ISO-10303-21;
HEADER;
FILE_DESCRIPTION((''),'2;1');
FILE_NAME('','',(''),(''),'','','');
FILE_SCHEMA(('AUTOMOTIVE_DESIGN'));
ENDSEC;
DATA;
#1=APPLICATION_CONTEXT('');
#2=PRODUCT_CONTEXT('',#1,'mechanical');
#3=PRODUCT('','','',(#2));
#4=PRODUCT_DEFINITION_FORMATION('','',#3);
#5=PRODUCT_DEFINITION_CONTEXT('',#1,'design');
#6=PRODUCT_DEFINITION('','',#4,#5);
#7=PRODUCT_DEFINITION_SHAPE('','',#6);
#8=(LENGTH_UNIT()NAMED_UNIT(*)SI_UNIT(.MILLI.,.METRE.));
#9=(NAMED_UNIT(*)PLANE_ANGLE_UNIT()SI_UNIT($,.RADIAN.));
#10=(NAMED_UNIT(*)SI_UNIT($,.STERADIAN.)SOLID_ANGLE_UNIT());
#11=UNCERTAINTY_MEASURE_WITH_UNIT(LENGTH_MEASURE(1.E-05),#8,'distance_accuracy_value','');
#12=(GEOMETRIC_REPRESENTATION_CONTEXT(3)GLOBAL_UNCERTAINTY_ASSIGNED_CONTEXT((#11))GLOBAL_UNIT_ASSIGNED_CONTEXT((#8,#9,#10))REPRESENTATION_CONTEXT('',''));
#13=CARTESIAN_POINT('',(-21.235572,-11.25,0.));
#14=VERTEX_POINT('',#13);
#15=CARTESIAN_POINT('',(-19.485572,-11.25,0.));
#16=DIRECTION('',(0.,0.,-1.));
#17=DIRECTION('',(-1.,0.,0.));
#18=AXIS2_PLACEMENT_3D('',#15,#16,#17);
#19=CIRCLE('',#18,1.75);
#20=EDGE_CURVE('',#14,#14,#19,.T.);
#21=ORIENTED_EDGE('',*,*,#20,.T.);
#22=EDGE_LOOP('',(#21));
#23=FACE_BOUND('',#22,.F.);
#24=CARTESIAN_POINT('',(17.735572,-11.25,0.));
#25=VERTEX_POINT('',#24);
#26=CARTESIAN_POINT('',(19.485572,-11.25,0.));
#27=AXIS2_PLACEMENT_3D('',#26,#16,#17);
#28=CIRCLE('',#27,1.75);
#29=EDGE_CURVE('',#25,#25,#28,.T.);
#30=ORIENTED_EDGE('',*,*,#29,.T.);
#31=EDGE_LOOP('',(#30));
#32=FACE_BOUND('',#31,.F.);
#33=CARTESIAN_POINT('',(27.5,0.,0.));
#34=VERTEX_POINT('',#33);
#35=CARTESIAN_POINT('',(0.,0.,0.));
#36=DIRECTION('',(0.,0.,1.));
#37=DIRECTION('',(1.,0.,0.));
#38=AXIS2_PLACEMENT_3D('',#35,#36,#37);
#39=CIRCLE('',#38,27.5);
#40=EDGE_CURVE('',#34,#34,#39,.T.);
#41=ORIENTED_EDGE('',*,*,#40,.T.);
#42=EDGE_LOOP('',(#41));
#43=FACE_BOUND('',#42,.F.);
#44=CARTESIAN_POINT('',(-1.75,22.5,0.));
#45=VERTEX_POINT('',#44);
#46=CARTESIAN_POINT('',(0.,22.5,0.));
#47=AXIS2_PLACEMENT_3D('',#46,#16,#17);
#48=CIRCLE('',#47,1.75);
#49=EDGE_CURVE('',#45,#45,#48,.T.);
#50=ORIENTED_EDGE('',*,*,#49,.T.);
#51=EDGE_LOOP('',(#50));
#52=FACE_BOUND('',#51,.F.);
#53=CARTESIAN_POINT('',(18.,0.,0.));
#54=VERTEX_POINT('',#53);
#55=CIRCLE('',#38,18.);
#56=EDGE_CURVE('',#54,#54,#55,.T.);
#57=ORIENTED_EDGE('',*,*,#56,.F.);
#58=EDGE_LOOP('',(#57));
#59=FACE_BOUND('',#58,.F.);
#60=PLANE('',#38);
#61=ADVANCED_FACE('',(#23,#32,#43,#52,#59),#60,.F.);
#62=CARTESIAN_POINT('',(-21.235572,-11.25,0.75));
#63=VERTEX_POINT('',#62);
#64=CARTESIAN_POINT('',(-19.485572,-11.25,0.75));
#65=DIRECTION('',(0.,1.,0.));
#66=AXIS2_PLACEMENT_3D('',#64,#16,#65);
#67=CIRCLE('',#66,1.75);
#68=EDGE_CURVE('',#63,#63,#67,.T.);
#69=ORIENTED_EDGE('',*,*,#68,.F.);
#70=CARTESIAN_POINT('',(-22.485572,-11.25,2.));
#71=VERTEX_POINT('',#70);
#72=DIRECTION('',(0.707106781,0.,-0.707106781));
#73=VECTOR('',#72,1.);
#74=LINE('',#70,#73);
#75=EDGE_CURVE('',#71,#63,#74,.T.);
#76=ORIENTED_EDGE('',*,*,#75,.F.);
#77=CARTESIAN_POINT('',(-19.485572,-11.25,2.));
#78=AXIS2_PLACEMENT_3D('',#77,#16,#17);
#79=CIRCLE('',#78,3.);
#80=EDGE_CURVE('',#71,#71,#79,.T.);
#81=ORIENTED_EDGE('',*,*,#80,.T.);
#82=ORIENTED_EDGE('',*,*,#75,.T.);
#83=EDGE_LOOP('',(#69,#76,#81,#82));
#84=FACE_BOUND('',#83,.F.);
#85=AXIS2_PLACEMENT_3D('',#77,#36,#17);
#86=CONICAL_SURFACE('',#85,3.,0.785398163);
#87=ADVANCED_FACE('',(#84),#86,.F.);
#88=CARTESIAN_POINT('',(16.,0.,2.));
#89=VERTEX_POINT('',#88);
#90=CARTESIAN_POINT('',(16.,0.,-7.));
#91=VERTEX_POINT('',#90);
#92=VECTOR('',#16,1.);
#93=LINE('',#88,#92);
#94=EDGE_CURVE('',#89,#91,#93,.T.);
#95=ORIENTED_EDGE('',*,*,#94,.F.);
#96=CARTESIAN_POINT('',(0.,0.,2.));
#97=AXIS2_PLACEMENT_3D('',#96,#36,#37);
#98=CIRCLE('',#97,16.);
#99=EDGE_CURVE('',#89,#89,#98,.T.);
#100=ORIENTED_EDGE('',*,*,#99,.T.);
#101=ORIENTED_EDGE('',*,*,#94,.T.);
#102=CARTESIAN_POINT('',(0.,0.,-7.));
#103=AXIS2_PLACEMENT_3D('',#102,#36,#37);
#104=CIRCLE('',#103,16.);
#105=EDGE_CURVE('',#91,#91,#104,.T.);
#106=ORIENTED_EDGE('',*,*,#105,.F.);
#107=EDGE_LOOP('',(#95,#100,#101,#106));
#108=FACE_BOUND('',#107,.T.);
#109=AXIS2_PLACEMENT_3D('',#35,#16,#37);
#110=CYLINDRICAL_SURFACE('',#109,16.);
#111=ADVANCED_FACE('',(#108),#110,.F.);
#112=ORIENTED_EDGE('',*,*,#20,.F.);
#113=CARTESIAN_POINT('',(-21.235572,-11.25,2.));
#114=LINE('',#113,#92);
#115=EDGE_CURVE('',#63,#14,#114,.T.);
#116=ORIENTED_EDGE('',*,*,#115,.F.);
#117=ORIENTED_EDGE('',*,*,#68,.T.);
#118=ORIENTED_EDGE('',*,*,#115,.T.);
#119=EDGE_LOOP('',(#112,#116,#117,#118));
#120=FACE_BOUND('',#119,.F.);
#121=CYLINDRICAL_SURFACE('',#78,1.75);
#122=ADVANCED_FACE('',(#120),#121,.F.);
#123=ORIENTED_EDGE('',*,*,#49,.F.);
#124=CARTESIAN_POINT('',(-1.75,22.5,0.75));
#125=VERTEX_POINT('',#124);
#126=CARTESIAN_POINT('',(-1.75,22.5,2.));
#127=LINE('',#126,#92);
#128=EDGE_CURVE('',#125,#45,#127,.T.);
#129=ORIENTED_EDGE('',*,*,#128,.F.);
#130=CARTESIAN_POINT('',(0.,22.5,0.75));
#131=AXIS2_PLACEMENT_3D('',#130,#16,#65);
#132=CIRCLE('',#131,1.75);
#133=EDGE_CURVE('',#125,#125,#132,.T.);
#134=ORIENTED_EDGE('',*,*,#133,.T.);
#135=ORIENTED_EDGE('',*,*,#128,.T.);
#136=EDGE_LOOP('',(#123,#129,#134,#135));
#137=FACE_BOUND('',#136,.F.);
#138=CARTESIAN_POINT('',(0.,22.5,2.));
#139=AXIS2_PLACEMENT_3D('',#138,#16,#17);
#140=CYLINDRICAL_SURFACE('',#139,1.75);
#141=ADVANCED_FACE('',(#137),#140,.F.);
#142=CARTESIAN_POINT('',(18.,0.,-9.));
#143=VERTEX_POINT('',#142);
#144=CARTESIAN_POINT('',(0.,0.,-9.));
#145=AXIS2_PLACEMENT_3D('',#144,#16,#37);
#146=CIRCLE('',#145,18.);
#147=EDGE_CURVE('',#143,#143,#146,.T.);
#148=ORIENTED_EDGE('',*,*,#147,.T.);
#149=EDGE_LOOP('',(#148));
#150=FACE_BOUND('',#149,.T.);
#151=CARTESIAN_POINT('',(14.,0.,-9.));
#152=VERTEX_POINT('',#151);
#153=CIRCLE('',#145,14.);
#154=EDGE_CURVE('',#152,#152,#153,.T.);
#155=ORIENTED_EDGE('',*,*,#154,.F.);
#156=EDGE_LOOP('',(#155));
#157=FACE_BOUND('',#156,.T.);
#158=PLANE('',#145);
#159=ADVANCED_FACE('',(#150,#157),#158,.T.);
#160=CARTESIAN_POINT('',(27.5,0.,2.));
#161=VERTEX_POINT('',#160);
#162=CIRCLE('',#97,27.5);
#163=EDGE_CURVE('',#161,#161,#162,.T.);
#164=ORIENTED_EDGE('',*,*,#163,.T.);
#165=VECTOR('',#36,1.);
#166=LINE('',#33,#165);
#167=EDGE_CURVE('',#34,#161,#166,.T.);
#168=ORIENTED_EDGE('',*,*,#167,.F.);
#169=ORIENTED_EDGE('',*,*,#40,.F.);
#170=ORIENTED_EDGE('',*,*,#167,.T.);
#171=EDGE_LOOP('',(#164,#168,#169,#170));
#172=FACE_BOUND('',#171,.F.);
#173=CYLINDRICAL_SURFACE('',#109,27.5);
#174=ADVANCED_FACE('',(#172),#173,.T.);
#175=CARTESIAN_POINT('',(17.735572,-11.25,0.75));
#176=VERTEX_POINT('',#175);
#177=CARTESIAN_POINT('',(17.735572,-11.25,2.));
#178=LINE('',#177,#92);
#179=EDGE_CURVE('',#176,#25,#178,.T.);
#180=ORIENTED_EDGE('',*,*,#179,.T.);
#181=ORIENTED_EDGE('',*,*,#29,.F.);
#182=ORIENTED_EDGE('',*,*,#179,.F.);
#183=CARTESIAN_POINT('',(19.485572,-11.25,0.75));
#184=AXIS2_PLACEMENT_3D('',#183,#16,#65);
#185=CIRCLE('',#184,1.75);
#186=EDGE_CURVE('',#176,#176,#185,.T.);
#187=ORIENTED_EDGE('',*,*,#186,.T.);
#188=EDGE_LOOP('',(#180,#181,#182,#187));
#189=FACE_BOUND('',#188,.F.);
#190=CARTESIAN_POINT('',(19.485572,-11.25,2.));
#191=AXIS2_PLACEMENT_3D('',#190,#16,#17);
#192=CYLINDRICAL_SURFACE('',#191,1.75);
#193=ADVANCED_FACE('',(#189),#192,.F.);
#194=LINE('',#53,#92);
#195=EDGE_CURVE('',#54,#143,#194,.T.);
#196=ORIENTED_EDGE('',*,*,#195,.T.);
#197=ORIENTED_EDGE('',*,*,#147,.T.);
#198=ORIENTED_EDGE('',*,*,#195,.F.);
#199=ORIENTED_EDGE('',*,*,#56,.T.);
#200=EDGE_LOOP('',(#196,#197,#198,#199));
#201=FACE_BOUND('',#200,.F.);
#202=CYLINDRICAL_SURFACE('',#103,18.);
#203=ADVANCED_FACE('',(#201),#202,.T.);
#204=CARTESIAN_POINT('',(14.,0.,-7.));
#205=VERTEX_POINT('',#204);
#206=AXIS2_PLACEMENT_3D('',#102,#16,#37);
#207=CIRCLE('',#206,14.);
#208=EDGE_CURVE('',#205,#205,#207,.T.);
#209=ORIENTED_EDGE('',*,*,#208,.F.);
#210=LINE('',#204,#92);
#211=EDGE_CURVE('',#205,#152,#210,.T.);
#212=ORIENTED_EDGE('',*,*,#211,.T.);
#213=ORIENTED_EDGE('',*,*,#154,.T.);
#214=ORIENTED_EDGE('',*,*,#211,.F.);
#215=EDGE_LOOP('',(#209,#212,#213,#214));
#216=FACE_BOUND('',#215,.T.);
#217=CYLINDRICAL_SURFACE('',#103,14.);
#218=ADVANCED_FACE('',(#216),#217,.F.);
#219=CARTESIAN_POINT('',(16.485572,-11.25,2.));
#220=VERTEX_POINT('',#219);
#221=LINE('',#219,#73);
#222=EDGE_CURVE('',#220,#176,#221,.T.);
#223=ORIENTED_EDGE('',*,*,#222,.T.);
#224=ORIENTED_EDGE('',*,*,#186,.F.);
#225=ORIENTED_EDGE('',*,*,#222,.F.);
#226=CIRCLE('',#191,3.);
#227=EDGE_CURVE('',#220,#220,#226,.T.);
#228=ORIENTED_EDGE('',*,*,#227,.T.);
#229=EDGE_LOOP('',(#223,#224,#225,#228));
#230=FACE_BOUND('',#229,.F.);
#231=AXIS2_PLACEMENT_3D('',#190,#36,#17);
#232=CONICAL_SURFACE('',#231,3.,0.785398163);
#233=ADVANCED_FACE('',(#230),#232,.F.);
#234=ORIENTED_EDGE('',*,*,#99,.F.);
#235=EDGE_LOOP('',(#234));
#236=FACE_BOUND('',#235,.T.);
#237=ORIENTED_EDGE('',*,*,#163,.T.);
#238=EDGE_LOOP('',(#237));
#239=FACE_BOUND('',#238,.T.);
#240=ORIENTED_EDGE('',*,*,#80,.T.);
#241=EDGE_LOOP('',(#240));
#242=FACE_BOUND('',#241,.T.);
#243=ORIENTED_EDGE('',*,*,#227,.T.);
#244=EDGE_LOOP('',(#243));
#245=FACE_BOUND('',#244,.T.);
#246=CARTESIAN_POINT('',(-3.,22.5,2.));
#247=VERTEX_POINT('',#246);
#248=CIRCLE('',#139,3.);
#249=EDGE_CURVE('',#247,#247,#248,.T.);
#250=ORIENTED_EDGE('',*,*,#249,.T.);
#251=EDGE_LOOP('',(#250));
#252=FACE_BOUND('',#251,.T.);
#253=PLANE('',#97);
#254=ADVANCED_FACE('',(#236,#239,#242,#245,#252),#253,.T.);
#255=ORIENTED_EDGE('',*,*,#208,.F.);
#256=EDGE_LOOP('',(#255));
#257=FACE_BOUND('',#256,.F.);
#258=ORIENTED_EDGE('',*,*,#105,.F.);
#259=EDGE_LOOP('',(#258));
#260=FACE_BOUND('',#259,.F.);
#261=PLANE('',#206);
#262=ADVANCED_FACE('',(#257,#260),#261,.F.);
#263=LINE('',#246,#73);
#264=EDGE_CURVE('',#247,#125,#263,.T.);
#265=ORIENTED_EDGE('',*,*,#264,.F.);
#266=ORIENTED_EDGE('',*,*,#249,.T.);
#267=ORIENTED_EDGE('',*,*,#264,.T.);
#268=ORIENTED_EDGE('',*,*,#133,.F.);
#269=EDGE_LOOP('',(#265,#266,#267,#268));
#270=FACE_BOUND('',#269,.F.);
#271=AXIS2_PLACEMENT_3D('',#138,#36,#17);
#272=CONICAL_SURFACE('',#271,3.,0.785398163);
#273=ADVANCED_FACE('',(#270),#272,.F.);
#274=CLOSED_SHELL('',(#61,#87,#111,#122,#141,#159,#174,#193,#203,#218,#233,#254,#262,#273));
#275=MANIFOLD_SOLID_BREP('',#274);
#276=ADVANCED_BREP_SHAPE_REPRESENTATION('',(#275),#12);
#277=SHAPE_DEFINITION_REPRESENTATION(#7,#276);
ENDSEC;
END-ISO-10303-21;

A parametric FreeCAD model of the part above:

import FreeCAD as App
import Part
import Sketcher

V = App.Vector

doc = App.newDocument("Part")
body = doc.addObject("PartDesign::Body", "Body")

sketch1 = doc.addObject("Sketcher::SketchObject", "Sketch")
body.addObject(sketch1)
sketch1.AttachmentSupport = (doc.XY_Plane, [""])
sketch1.MapMode = "FlatFace"
sketch1.addGeometry([
    Part.Circle(V(0, 0, 0), V(0, 0, 1), 18),
    Part.Circle(V(0, 0, 0), V(0, 0, 1), 16),
], False)
sketch1.addConstraint([
    Sketcher.Constraint("Coincident", 0, 3, -1, 1),
    Sketcher.Constraint("Coincident", 1, 3, -1, 1),
    Sketcher.Constraint("Diameter", 0, 36.0),
    Sketcher.Constraint("Diameter", 1, 32.0),
])
pad1 = doc.addObject("PartDesign::Pad", "Pad")
body.addObject(pad1)
pad1.Profile = sketch1
pad1.Length = 7
pad1.Reversed = True

sketch2 = doc.addObject("Sketcher::SketchObject", "Sketch001")
body.addObject(sketch2)
sketch2.AttachmentSupport = (doc.XY_Plane, [""])
sketch2.MapMode = "FlatFace"
sketch2.addGeometry([
    Part.Circle(V(0, 0, 0), V(0, 0, 1), 28),
    Part.Circle(V(0, 0, 0), V(0, 0, 1), 16),
], False)
sketch2.addConstraint([
    Sketcher.Constraint("Coincident", 0, 3, -1, 1),
    Sketcher.Constraint("Coincident", 1, 3, -1, 1),
    Sketcher.Constraint("Diameter", 0, 55.0),
    Sketcher.Constraint("Diameter", 1, 32.0),
])
pad2 = doc.addObject("PartDesign::Pad", "Pad001")
body.addObject(pad2)
pad2.Profile = sketch2
pad2.Length = 2

sketch3 = doc.addObject("Sketcher::SketchObject", "Sketch002")
body.addObject(sketch3)
sketch3.AttachmentSupport = (doc.XY_Plane, [""])
sketch3.MapMode = "FlatFace"
sketch3.AttachmentOffset = App.Placement(V(0, 0, -7), App.Rotation())
sketch3.addGeometry([
    Part.Circle(V(0, 0, 0), V(0, 0, 1), 18),
    Part.Circle(V(0, 0, 0), V(0, 0, 1), 14),
], False)
sketch3.addConstraint([
    Sketcher.Constraint("Coincident", 0, 3, -1, 1),
    Sketcher.Constraint("Coincident", 1, 3, -1, 1),
    Sketcher.Constraint("Diameter", 0, 36.0),
    Sketcher.Constraint("Diameter", 1, 28.0),
])
pad3 = doc.addObject("PartDesign::Pad", "Pad002")
body.addObject(pad3)
pad3.Profile = sketch3
pad3.Length = 2
pad3.Reversed = True

sketch4 = doc.addObject("Sketcher::SketchObject", "Sketch003")
body.addObject(sketch4)
sketch4.AttachmentSupport = (doc.XY_Plane, [""])
sketch4.MapMode = "FlatFace"
sketch4.AttachmentOffset = App.Placement(V(0, 0, 2), App.Rotation())
sketch4.addGeometry([
    Part.Circle(V(0, 22.5, 0), V(0, 0, 1), 1.8),
    Part.Circle(V(-19.5, -11.2, 0), V(0, 0, 1), 1.8),
    Part.Circle(V(19.5, -11.2, 0), V(0, 0, 1), 1.8),
], False)
sketch4.addConstraint([
    Sketcher.Constraint("Equal", 0, 1),
    Sketcher.Constraint("Equal", 1, 2),
    Sketcher.Constraint("Symmetric", 1, 3, 2, 3, -2),
    Sketcher.Constraint("PointOnObject", 0, 3, -2),
    Sketcher.Constraint("Diameter", 0, 3.5),
    Sketcher.Constraint("DistanceY", -1, 1, 0, 3, 22.5),
    Sketcher.Constraint("DistanceY", 1, 3, -1, 1, 11.25),
    Sketcher.Constraint("DistanceX", 1, 3, -1, 1, 19.485572),
])
doc.recompute()
hole = doc.addObject("PartDesign::Hole", "Hole")
body.addObject(hole)
hole.Profile = sketch4
hole.ThreadType = "None"
hole.Diameter = 3.5
hole.DepthType = "ThroughAll"
hole.HoleCutType = "Countersink"
hole.HoleCutDiameter = 6
hole.HoleCutCountersinkAngle = 90

doc.recompute()
